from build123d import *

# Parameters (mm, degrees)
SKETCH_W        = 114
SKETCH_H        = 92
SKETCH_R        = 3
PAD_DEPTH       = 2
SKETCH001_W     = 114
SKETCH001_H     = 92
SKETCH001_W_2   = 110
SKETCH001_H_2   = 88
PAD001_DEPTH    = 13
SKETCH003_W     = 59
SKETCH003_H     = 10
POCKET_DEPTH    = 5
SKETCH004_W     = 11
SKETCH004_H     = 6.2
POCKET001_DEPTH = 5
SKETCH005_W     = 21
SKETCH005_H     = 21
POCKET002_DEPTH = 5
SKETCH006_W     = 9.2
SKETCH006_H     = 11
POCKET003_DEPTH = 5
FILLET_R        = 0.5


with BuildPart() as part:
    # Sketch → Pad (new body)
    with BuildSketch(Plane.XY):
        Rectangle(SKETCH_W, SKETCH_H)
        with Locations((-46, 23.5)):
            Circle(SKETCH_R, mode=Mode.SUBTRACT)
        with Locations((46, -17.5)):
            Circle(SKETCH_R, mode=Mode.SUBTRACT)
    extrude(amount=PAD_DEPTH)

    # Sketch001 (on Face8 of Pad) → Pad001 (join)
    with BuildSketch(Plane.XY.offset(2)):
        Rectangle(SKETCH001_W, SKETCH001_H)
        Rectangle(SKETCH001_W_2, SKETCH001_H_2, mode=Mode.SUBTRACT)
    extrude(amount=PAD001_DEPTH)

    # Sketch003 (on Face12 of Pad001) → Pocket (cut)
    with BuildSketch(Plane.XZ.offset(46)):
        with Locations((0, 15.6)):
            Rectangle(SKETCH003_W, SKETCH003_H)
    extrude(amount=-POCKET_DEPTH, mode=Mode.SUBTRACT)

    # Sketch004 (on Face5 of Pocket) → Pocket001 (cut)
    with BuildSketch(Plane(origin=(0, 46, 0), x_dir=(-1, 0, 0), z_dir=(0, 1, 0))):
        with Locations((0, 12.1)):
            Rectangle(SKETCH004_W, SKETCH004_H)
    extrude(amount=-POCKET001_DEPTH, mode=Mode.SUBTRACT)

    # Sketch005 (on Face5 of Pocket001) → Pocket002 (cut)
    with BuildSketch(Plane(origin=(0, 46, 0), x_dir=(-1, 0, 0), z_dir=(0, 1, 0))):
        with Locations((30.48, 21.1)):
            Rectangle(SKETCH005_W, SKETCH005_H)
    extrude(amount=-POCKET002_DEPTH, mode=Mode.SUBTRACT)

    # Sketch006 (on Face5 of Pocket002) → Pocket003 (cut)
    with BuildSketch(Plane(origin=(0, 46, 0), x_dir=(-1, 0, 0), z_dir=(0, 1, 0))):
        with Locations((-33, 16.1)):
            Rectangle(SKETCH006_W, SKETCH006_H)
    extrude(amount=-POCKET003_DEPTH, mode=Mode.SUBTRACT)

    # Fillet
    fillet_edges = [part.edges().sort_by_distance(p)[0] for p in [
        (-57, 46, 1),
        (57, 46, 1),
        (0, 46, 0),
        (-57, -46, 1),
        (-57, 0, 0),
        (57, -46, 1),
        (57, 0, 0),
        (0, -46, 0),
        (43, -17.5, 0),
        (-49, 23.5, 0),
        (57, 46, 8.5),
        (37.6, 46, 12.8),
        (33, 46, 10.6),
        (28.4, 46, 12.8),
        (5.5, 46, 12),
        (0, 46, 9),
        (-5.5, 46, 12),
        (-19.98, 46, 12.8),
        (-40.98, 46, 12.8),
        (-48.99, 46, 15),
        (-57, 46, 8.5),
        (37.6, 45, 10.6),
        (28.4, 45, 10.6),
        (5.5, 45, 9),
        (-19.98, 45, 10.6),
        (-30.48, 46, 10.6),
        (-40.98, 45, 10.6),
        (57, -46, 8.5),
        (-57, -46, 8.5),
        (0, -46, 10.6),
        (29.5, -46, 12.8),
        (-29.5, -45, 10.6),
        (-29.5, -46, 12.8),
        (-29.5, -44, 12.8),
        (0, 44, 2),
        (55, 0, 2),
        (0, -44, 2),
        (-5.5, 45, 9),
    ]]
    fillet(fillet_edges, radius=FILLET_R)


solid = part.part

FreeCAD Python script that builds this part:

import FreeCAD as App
import Part
import Sketcher
from FreeCAD import Vector
Q = App.Units.Quantity


def edges_at(feature, points):
    """Names of the edges that pass closest to the given points."""
    edges = feature.Shape.Edges
    near = lambda p: min(range(len(edges)), key=lambda i: edges[i].distToShape(Part.Vertex(*p))[0])
    return sorted({f"Edge{near(p) + 1}" for p in points})

doc = App.newDocument("Part")
body = doc.addObject("PartDesign::Body", "Body")

sketch1 = body.newObject("Sketcher::SketchObject", "Sketch")
sketch1.AttachmentSupport = (doc.getObject("XY_Plane"), [""])
sketch1.MapMode = "FlatFace"
sketch1.addGeometry(Part.LineSegment(Vector(-57, 46, 0), Vector(-57, -46, 0)), False)
sketch1.addGeometry(Part.LineSegment(Vector(-57, -46, 0), Vector(57, -46, 0)), False)
sketch1.addGeometry(Part.LineSegment(Vector(57, -46, 0), Vector(57, 46, 0)), False)
sketch1.addGeometry(Part.LineSegment(Vector(57, 46, 0), Vector(-57, 46, 0)), False)
sketch1.addGeometry(Part.Circle(Vector(46, -17.5, 0), Vector(0, 0, 1), 3), False)
sketch1.addGeometry(Part.Circle(Vector(-46, 23.5, 0), Vector(0, 0, 1), 3), False)
sketch1.addConstraint(Sketcher.Constraint("Coincident", 0, 2, 1, 1))
sketch1.addConstraint(Sketcher.Constraint("Coincident", 1, 2, 2, 1))
sketch1.addConstraint(Sketcher.Constraint("Coincident", 2, 2, 3, 1))
sketch1.addConstraint(Sketcher.Constraint("Coincident", 3, 2, 0, 1))
sketch1.addConstraint(Sketcher.Constraint("Vertical", 0))
sketch1.addConstraint(Sketcher.Constraint("Horizontal", 1))
sketch1.addConstraint(Sketcher.Constraint("Vertical", 2))
sketch1.addConstraint(Sketcher.Constraint("Horizontal", 3))
sketch1.addConstraint(Sketcher.Constraint("Equal", 4, 5))
sketch1.addConstraint(Sketcher.Constraint("Symmetric", 0, 2, 2, 2, -1, 1))
sketch1.addConstraint(Sketcher.Constraint("Diameter", 4, Q("6 mm")))
sketch1.addConstraint(Sketcher.Constraint("DistanceX", 1, 1, 1, 2, Q("114 mm")))
sketch1.addConstraint(Sketcher.Constraint("DistanceY", 0, 2, 0, 1, Q("92 mm")))
sketch1.addConstraint(Sketcher.Constraint("DistanceX", -1, 1, 4, 3, Q("46 mm")))
sketch1.addConstraint(Sketcher.Constraint("DistanceX", 5, 3, -1, 1, Q("46 mm")))
sketch1.addConstraint(Sketcher.Constraint("DistanceY", 4, 3, 5, 3, Q("41 mm")))
sketch1.addConstraint(Sketcher.Constraint("DistanceY", 4, 3, -1, 1, Q("17.5 mm")))
pad1 = body.newObject("PartDesign::Pad", "Pad")
pad1.Profile = sketch1
pad1.Length = 2

sketch2 = body.newObject("Sketcher::SketchObject", "Sketch001")
sketch2.AttachmentSupport = (doc.getObject("XY_Plane"), [""])
sketch2.MapMode = "FlatFace"
sketch2.AttachmentOffset = App.Placement(Vector(0, 0, 2), App.Rotation())
sketch2.addGeometry(Part.LineSegment(Vector(-57, 46, 0), Vector(-57, -46, 0)), False)
sketch2.addGeometry(Part.LineSegment(Vector(-57, -46, 0), Vector(57, -46, 0)), False)
sketch2.addGeometry(Part.LineSegment(Vector(57, -46, 0), Vector(57, 46, 0)), False)
sketch2.addGeometry(Part.LineSegment(Vector(57, 46, 0), Vector(-57, 46, 0)), False)
sketch2.addGeometry(Part.LineSegment(Vector(55, -44, 0), Vector(-55, -44, 0)), False)
sketch2.addGeometry(Part.LineSegment(Vector(-55, -44, 0), Vector(-55, 44, 0)), False)
sketch2.addGeometry(Part.LineSegment(Vector(-55, 44, 0), Vector(55, 44, 0)), False)
sketch2.addGeometry(Part.LineSegment(Vector(55, 44, 0), Vector(55, -44, 0)), False)
sketch2.addConstraint(Sketcher.Constraint("Coincident", 0, 2, 1, 1))
sketch2.addConstraint(Sketcher.Constraint("Coincident", 1, 2, 2, 1))
sketch2.addConstraint(Sketcher.Constraint("Coincident", 2, 2, 3, 1))
sketch2.addConstraint(Sketcher.Constraint("Coincident", 3, 2, 0, 1))
sketch2.addConstraint(Sketcher.Constraint("Coincident", 4, 2, 5, 1))
sketch2.addConstraint(Sketcher.Constraint("Coincident", 5, 2, 6, 1))
sketch2.addConstraint(Sketcher.Constraint("Coincident", 6, 2, 7, 1))
sketch2.addConstraint(Sketcher.Constraint("Coincident", 7, 2, 4, 1))
sketch2.addConstraint(Sketcher.Constraint("Vertical", 0))
sketch2.addConstraint(Sketcher.Constraint("Horizontal", 1))
sketch2.addConstraint(Sketcher.Constraint("Vertical", 2))
sketch2.addConstraint(Sketcher.Constraint("Horizontal", 3))
sketch2.addConstraint(Sketcher.Constraint("Horizontal", 4))
sketch2.addConstraint(Sketcher.Constraint("Vertical", 5))
sketch2.addConstraint(Sketcher.Constraint("Horizontal", 6))
sketch2.addConstraint(Sketcher.Constraint("Vertical", 7))
sketch2.addConstraint(Sketcher.Constraint("Symmetric", 0, 2, 2, 2, -1, 1))
sketch2.addConstraint(Sketcher.Constraint("Symmetric", 4, 2, 6, 2, -1, 1))
sketch2.addConstraint(Sketcher.Constraint("DistanceX", 1, 1, 1, 2, Q("114 mm")))
sketch2.addConstraint(Sketcher.Constraint("DistanceX", 4, 2, 4, 1, Q("110 mm")))
sketch2.addConstraint(Sketcher.Constraint("DistanceY", 0, 2, 0, 1, Q("92 mm")))
sketch2.addConstraint(Sketcher.Constraint("DistanceY", 5, 1, 5, 2, Q("88 mm")))
pad2 = body.newObject("PartDesign::Pad", "Pad001")
pad2.Profile = sketch2
pad2.Length = 13

sketch3 = body.newObject("Sketcher::SketchObject", "Sketch002")
sketch3.AttachmentSupport = (doc.getObject("XZ_Plane"), [""])
sketch3.MapMode = "FlatFace"
sketch3.AttachmentOffset = App.Placement(Vector(0, 0, 46), App.Rotation())
sketch3.addGeometry(Part.LineSegment(Vector(-30, 21, 0), Vector(-30, 11, 0)), False)
sketch3.addGeometry(Part.LineSegment(Vector(-30, 11, 0), Vector(30, 11, 0)), False)
sketch3.addGeometry(Part.LineSegment(Vector(30, 11, 0), Vector(30, 21, 0)), False)
sketch3.addGeometry(Part.LineSegment(Vector(30, 21, 0), Vector(-30, 21, 0)), False)
sketch3.addConstraint(Sketcher.Constraint("Coincident", 0, 2, 1, 1))
sketch3.addConstraint(Sketcher.Constraint("Coincident", 1, 2, 2, 1))
sketch3.addConstraint(Sketcher.Constraint("Coincident", 2, 2, 3, 1))
sketch3.addConstraint(Sketcher.Constraint("Coincident", 3, 2, 0, 1))
sketch3.addConstraint(Sketcher.Constraint("Vertical", 0))
sketch3.addConstraint(Sketcher.Constraint("Horizontal", 1))
sketch3.addConstraint(Sketcher.Constraint("Vertical", 2))
sketch3.addConstraint(Sketcher.Constraint("Horizontal", 3))
sketch3.addConstraint(Sketcher.Constraint("DistanceX", 1, 1, 1, 2, Q("59 mm")))
sketch3.addConstraint(Sketcher.Constraint("DistanceY", 0, 2, 0, 1, Q("10 mm")))
sketch3.addConstraint(Sketcher.Constraint("DistanceX", 0, 2, -1, 1, Q("29.5 mm")))
sketch3.addConstraint(Sketcher.Constraint("DistanceY", -1, 1, 0, 2, Q("10.6 mm")))
pocket1 = body.newObject("PartDesign::Pocket", "Pocket")
pocket1.Profile = sketch3
pocket1.Length = 5

sketch4 = body.newObject("Sketcher::SketchObject", "Sketch003")
sketch4.AttachmentSupport = (doc.getObject("XZ_Plane"), [""])
sketch4.MapMode = "FlatFace"
sketch4.AttachmentOffset = App.Placement(Vector(0, 0, -46), App.Rotation())
sketch4.addGeometry(Part.LineSegment(Vector(6, 15, 0), Vector(6, 9, 0)), False)
sketch4.addGeometry(Part.LineSegment(Vector(6, 9, 0), Vector(-6, 9, 0)), False)
sketch4.addGeometry(Part.LineSegment(Vector(-6, 9, 0), Vector(-6, 15, 0)), False)
sketch4.addGeometry(Part.LineSegment(Vector(-6, 15, 0), Vector(6, 15, 0)), False)
sketch4.addConstraint(Sketcher.Constraint("Coincident", 0, 2, 1, 1))
sketch4.addConstraint(Sketcher.Constraint("Coincident", 1, 2, 2, 1))
sketch4.addConstraint(Sketcher.Constraint("Coincident", 2, 2, 3, 1))
sketch4.addConstraint(Sketcher.Constraint("Coincident", 3, 2, 0, 1))
sketch4.addConstraint(Sketcher.Constraint("Vertical", 0))
sketch4.addConstraint(Sketcher.Constraint("Horizontal", 1))
sketch4.addConstraint(Sketcher.Constraint("Vertical", 2))
sketch4.addConstraint(Sketcher.Constraint("Horizontal", 3))
sketch4.addConstraint(Sketcher.Constraint("DistanceX", 1, 2, 1, 1, Q("11 mm")))
sketch4.addConstraint(Sketcher.Constraint("DistanceY", 0, 2, 0, 1, Q("6.2 mm")))
sketch4.addConstraint(Sketcher.Constraint("DistanceY", -1, 1, 0, 2, Q("9 mm")))
sketch4.addConstraint(Sketcher.Constraint("DistanceX", -1, 1, 0, 2, Q("5.5 mm")))
pocket2 = body.newObject("PartDesign::Pocket", "Pocket001")
pocket2.Profile = sketch4
pocket2.Length = 5
pocket2.Reversed = True

sketch5 = body.newObject("Sketcher::SketchObject", "Sketch004")
sketch5.AttachmentSupport = (doc.getObject("XZ_Plane"), [""])
sketch5.MapMode = "FlatFace"
sketch5.AttachmentOffset = App.Placement(Vector(0, 0, -46), App.Rotation())
sketch5.addGeometry(Part.LineSegment(Vector(-20, 32, 0), Vector(-20, 11, 0)), False)
sketch5.addGeometry(Part.LineSegment(Vector(-20, 11, 0), Vector(-41, 11, 0)), False)
sketch5.addGeometry(Part.LineSegment(Vector(-41, 11, 0), Vector(-41, 32, 0)), False)
sketch5.addGeometry(Part.LineSegment(Vector(-41, 32, 0), Vector(-20, 32, 0)), False)
sketch5.addConstraint(Sketcher.Constraint("Coincident", 0, 2, 1, 1))
sketch5.addConstraint(Sketcher.Constraint("Coincident", 1, 2, 2, 1))
sketch5.addConstraint(Sketcher.Constraint("Coincident", 2, 2, 3, 1))
sketch5.addConstraint(Sketcher.Constraint("Coincident", 3, 2, 0, 1))
sketch5.addConstraint(Sketcher.Constraint("Vertical", 0))
sketch5.addConstraint(Sketcher.Constraint("Horizontal", 1))
sketch5.addConstraint(Sketcher.Constraint("Vertical", 2))
sketch5.addConstraint(Sketcher.Constraint("Horizontal", 3))
sketch5.addConstraint(Sketcher.Constraint("Equal", 3, 0))
sketch5.addConstraint(Sketcher.Constraint("DistanceX", 1, 2, 1, 1, Q("21 mm")))
sketch5.addConstraint(Sketcher.Constraint("DistanceY", -1, 1, 0, 2, Q("10.6 mm")))
sketch5.addConstraint(Sketcher.Constraint("DistanceX", 0, 2, -1, 1, Q("19.98 mm")))
pocket3 = body.newObject("PartDesign::Pocket", "Pocket002")
pocket3.Profile = sketch5
pocket3.Length = 5
pocket3.Reversed = True

sketch6 = body.newObject("Sketcher::SketchObject", "Sketch005")
sketch6.AttachmentSupport = (doc.getObject("XZ_Plane"), [""])
sketch6.MapMode = "FlatFace"
sketch6.AttachmentOffset = App.Placement(Vector(0, 0, -46), App.Rotation())
sketch6.addGeometry(Part.LineSegment(Vector(38, 22, 0), Vector(38, 11, 0)), False)
sketch6.addGeometry(Part.LineSegment(Vector(38, 11, 0), Vector(28, 11, 0)), False)
sketch6.addGeometry(Part.LineSegment(Vector(28, 11, 0), Vector(28, 22, 0)), False)
sketch6.addGeometry(Part.LineSegment(Vector(28, 22, 0), Vector(38, 22, 0)), False)
sketch6.addConstraint(Sketcher.Constraint("Coincident", 0, 2, 1, 1))
sketch6.addConstraint(Sketcher.Constraint("Coincident", 1, 2, 2, 1))
sketch6.addConstraint(Sketcher.Constraint("Coincident", 2, 2, 3, 1))
sketch6.addConstraint(Sketcher.Constraint("Coincident", 3, 2, 0, 1))
sketch6.addConstraint(Sketcher.Constraint("Vertical", 0))
sketch6.addConstraint(Sketcher.Constraint("Horizontal", 1))
sketch6.addConstraint(Sketcher.Constraint("Vertical", 2))
sketch6.addConstraint(Sketcher.Constraint("Horizontal", 3))
sketch6.addConstraint(Sketcher.Constraint("DistanceY", 0, 2, 0, 1, Q("11 mm")))
sketch6.addConstraint(Sketcher.Constraint("DistanceX", 1, 2, 1, 1, Q("9.2 mm")))
sketch6.addConstraint(Sketcher.Constraint("DistanceX", -1, 1, 0, 2, Q("37.6 mm")))
sketch6.addConstraint(Sketcher.Constraint("DistanceY", -1, 1, 0, 2, Q("10.6 mm")))
pocket4 = body.newObject("PartDesign::Pocket", "Pocket003")
pocket4.Profile = sketch6
pocket4.Length = 5
pocket4.Reversed = True
doc.recompute()

fillet = body.newObject("PartDesign::Fillet", "Fillet")
fillet.Base = (pocket4, edges_at(pocket4, [
    (-57, 46, 7.5),
    (57, 46, 7.5),
    (0, 46, 0),
    (-57, -46, 7.5),
    (-57, 0, 0),
    (57, -46, 7.5),
    (57, 0, 0),
    (0, -46, 0),
    (43, -17.5, 0),
    (-49, 23.5, 0),
    (57, 46, 7.5),
    (37.6, 46, 12.8),
    (33, 46, 10.6),
    (28.4, 46, 12.8),
    (5.5, 46, 12),
    (0, 46, 9),
    (-5.5, 46, 12),
    (-19.98, 46, 12.8),
    (-40.98, 46, 12.8),
    (-48.99, 46, 15),
    (-57, 46, 7.5),
    (37.6, 45, 10.6),
    (28.4, 45, 10.6),
    (5.5, 45, 9),
    (-19.98, 45, 10.6),
    (-30.48, 46, 10.6),
    (-40.98, 45, 10.6),
    (57, -46, 7.5),
    (-57, -46, 7.5),
    (0, -46, 10.6),
    (29.5, -46, 12.8),
    (-29.5, -45, 10.6),
    (-29.5, -46, 12.8),
    (-29.5, -44, 12.8),
    (0, 44, 2),
    (55, 0, 2),
    (0, -44, 2),
    (-5.5, 45, 9),
]))
fillet.Radius = 0.5

doc.recompute()
